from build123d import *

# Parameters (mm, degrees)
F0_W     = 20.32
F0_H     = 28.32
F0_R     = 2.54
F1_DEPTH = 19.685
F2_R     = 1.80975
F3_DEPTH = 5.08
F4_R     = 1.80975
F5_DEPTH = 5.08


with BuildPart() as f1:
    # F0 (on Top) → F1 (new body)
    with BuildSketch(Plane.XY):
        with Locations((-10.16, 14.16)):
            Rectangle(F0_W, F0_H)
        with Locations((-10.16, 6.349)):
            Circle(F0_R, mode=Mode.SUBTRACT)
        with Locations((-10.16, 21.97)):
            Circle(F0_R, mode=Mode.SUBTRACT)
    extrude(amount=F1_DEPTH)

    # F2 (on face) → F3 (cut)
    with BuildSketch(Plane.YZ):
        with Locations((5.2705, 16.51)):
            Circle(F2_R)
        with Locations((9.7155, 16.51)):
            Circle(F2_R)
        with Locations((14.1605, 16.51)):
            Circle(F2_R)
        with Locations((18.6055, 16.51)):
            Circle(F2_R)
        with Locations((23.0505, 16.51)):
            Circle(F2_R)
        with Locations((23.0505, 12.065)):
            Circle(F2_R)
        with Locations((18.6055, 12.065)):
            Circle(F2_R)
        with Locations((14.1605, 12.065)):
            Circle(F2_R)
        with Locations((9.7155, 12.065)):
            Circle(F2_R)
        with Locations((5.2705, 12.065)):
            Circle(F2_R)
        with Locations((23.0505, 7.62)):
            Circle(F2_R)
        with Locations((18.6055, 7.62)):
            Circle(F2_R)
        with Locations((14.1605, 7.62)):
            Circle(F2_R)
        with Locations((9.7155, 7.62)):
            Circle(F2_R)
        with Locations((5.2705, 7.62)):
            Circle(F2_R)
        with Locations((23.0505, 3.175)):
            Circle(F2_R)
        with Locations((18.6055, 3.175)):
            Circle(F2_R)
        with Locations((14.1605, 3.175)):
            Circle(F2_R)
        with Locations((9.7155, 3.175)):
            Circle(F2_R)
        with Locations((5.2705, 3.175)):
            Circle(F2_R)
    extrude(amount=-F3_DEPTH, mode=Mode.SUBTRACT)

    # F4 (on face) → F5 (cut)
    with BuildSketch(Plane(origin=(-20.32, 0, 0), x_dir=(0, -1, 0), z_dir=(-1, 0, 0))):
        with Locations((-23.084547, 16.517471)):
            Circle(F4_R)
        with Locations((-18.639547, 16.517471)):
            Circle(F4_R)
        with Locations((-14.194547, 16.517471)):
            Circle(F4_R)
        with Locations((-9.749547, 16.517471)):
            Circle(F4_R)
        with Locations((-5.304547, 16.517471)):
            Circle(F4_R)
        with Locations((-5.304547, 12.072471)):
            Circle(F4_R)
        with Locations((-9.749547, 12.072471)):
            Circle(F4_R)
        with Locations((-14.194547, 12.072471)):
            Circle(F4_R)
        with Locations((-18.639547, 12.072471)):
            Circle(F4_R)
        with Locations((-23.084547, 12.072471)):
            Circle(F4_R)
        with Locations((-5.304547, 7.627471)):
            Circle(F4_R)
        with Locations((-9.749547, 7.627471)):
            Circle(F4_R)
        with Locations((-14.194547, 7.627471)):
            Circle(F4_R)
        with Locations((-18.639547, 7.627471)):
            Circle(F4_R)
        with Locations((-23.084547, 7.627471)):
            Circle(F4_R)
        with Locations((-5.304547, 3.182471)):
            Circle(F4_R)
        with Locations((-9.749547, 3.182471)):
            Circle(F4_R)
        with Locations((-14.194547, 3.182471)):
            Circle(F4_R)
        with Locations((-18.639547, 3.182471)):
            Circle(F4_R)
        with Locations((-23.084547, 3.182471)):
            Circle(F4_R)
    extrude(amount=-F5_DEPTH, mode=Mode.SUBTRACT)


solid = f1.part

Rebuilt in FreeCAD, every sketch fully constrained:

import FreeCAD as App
import Part
import Sketcher
from FreeCAD import Vector
Q = App.Units.Quantity

doc = App.newDocument("Part")
params = doc.addObject("Spreadsheet::Sheet", "Params")
for row, (alias, value) in enumerate([
    ("sketch1_diameter", "0.2 in"),
    ("sketch1_width", "0.8 in"),
    ("pad1_length", "0.775 in"),
    ("pocket1_length", "0.2 in"),
    ("pocket2_length", "0.2 in"),
], start=1):
    params.set(f"A{row}", alias)
    params.set(f"B{row}", "=" + value)
    params.setAlias(f"B{row}", alias)

body = doc.addObject("PartDesign::Body", "Body")

sketch1 = doc.addObject("Sketcher::SketchObject", "Sketch")
body.addObject(sketch1)
sketch1.AttachmentSupport = (doc.XY_Plane, [""])
sketch1.MapMode = "FlatFace"
sketch1.addGeometry(Part.LineSegment(Vector(-20.3, 28.3, 0), Vector(-20.3, 0, 0)), False)
sketch1.addGeometry(Part.LineSegment(Vector(-20.3, 0, 0), Vector(0, 0, 0)), False)
sketch1.addGeometry(Part.LineSegment(Vector(0, 0, 0), Vector(0, 28.3, 0)), False)
sketch1.addGeometry(Part.LineSegment(Vector(0, 28.3, 0), Vector(-20.3, 28.3, 0)), False)
sketch1.addGeometry(Part.Circle(Vector(-10.2, 6.3, 0), Vector(0, 0, 1), 2.5), False)
sketch1.addGeometry(Part.Circle(Vector(-10.2, 22, 0), Vector(0, 0, 1), 2.5), False)
sketch1.addConstraint(Sketcher.Constraint("Coincident", 0, 2, 1, 1))
sketch1.addConstraint(Sketcher.Constraint("Coincident", 1, 2, 2, 1))
sketch1.addConstraint(Sketcher.Constraint("Coincident", 2, 2, 3, 1))
sketch1.addConstraint(Sketcher.Constraint("Coincident", 3, 2, 0, 1))
sketch1.addConstraint(Sketcher.Constraint("Vertical", 0))
sketch1.addConstraint(Sketcher.Constraint("Horizontal", 1))
sketch1.addConstraint(Sketcher.Constraint("Vertical", 2))
sketch1.addConstraint(Sketcher.Constraint("Horizontal", 3))
sketch1.addConstraint(Sketcher.Constraint("Coincident", 1, 2, -1, 1))
sketch1.addConstraint(Sketcher.Constraint("Equal", 4, 5))
sketch1.addConstraint(Sketcher.Constraint("Vertical", 4, 3, 5, 3))
sketch1.addConstraint(Sketcher.Constraint("Diameter", 4, Q("0.2 in")))
sketch1.addConstraint(Sketcher.Constraint("DistanceX", 1, 1, 1, 2, Q("0.8 in")))
sketch1.addConstraint(Sketcher.Constraint("DistanceX", 4, 3, -1, 1, Q("0.4 in")))
sketch1.addConstraint(Sketcher.Constraint("DistanceY", 5, 3, 2, 2, Q("0.25 in")))
sketch1.addConstraint(Sketcher.Constraint("DistanceY", 4, 3, 5, 3, Q("0.615 in")))
sketch1.addConstraint(Sketcher.Constraint("DistanceY", 0, 2, 0, 1, Q("28.32 mm")))
sketch1.setExpression("Constraints[11]", "Params.sketch1_diameter")
sketch1.setExpression("Constraints[12]", "Params.sketch1_width")
pad1 = doc.addObject("PartDesign::Pad", "Pad")
body.addObject(pad1)
pad1.Profile = sketch1
pad1.setExpression("Length", "Params.pad1_length")

sketch2 = doc.addObject("Sketcher::SketchObject", "Sketch001")
body.addObject(sketch2)
sketch2.AttachmentSupport = (doc.YZ_Plane, [""])
sketch2.MapMode = "FlatFace"
sketch2.addGeometry(Part.Circle(Vector(5.3, 16.5, 0), Vector(0, 0, 1), 1.8), False)
sketch2.addGeometry(Part.Circle(Vector(9.7, 16.5, 0), Vector(0, 0, 1), 1.8), False)
sketch2.addGeometry(Part.Circle(Vector(14.2, 16.5, 0), Vector(0, 0, 1), 1.8), False)
sketch2.addGeometry(Part.Circle(Vector(18.6, 16.5, 0), Vector(0, 0, 1), 1.8), False)
sketch2.addGeometry(Part.Circle(Vector(23.1, 16.5, 0), Vector(0, 0, 1), 1.8), False)
sketch2.addGeometry(Part.Circle(Vector(23.1, 12.1, 0), Vector(0, 0, 1), 1.8), False)
sketch2.addGeometry(Part.Circle(Vector(18.6, 12.1, 0), Vector(0, 0, 1), 1.8), False)
sketch2.addGeometry(Part.Circle(Vector(14.2, 12.1, 0), Vector(0, 0, 1), 1.8), False)
sketch2.addGeometry(Part.Circle(Vector(9.7, 12.1, 0), Vector(0, 0, 1), 1.8), False)
sketch2.addGeometry(Part.Circle(Vector(5.3, 12.1, 0), Vector(0, 0, 1), 1.8), False)
sketch2.addGeometry(Part.Circle(Vector(23.1, 7.6, 0), Vector(0, 0, 1), 1.8), False)
sketch2.addGeometry(Part.Circle(Vector(18.6, 7.6, 0), Vector(0, 0, 1), 1.8), False)
sketch2.addGeometry(Part.Circle(Vector(14.2, 7.6, 0), Vector(0, 0, 1), 1.8), False)
sketch2.addGeometry(Part.Circle(Vector(9.7, 7.6, 0), Vector(0, 0, 1), 1.8), False)
sketch2.addGeometry(Part.Circle(Vector(5.3, 7.6, 0), Vector(0, 0, 1), 1.8), False)
sketch2.addGeometry(Part.Circle(Vector(23.1, 3.2, 0), Vector(0, 0, 1), 1.8), False)
sketch2.addGeometry(Part.Circle(Vector(18.6, 3.2, 0), Vector(0, 0, 1), 1.8), False)
sketch2.addGeometry(Part.Circle(Vector(14.2, 3.2, 0), Vector(0, 0, 1), 1.8), False)
sketch2.addGeometry(Part.Circle(Vector(9.7, 3.2, 0), Vector(0, 0, 1), 1.8), False)
sketch2.addGeometry(Part.Circle(Vector(5.3, 3.2, 0), Vector(0, 0, 1), 1.8), False)
sketch2.addConstraint(Sketcher.Constraint("Equal", 0, 1))
sketch2.addConstraint(Sketcher.Constraint("Equal", 1, 2))
sketch2.addConstraint(Sketcher.Constraint("Equal", 2, 3))
sketch2.addConstraint(Sketcher.Constraint("Equal", 3, 4))
sketch2.addConstraint(Sketcher.Constraint("Equal", 4, 5))
sketch2.addConstraint(Sketcher.Constraint("Equal", 5, 6))
sketch2.addConstraint(Sketcher.Constraint("Equal", 6, 7))
sketch2.addConstraint(Sketcher.Constraint("Equal", 7, 8))
sketch2.addConstraint(Sketcher.Constraint("Equal", 8, 9))
sketch2.addConstraint(Sketcher.Constraint("Equal", 9, 10))
sketch2.addConstraint(Sketcher.Constraint("Equal", 10, 11))
sketch2.addConstraint(Sketcher.Constraint("Equal", 11, 12))
sketch2.addConstraint(Sketcher.Constraint("Equal", 12, 13))
sketch2.addConstraint(Sketcher.Constraint("Equal", 13, 14))
sketch2.addConstraint(Sketcher.Constraint("Equal", 14, 15))
sketch2.addConstraint(Sketcher.Constraint("Equal", 15, 16))
sketch2.addConstraint(Sketcher.Constraint("Equal", 16, 17))
sketch2.addConstraint(Sketcher.Constraint("Equal", 17, 18))
sketch2.addConstraint(Sketcher.Constraint("Equal", 18, 19))
sketch2.addConstraint(Sketcher.Constraint("Horizontal", 0, 3, 1, 3))
sketch2.addConstraint(Sketcher.Constraint("Horizontal", 1, 3, 2, 3))
sketch2.addConstraint(Sketcher.Constraint("Horizontal", 2, 3, 3, 3))
sketch2.addConstraint(Sketcher.Constraint("Horizontal", 3, 3, 4, 3))
sketch2.addConstraint(Sketcher.Constraint("Horizontal", 5, 3, 6, 3))
sketch2.addConstraint(Sketcher.Constraint("Horizontal", 6, 3, 7, 3))
sketch2.addConstraint(Sketcher.Constraint("Horizontal", 7, 3, 8, 3))
sketch2.addConstraint(Sketcher.Constraint("Horizontal", 8, 3, 9, 3))
sketch2.addConstraint(Sketcher.Constraint("Horizontal", 10, 3, 11, 3))
sketch2.addConstraint(Sketcher.Constraint("Horizontal", 11, 3, 12, 3))
sketch2.addConstraint(Sketcher.Constraint("Horizontal", 12, 3, 13, 3))
sketch2.addConstraint(Sketcher.Constraint("Horizontal", 13, 3, 14, 3))
sketch2.addConstraint(Sketcher.Constraint("Horizontal", 15, 3, 16, 3))
sketch2.addConstraint(Sketcher.Constraint("Horizontal", 16, 3, 17, 3))
sketch2.addConstraint(Sketcher.Constraint("Horizontal", 17, 3, 18, 3))
sketch2.addConstraint(Sketcher.Constraint("Horizontal", 18, 3, 19, 3))
sketch2.addConstraint(Sketcher.Constraint("Vertical", 4, 3, 5, 3))
sketch2.addConstraint(Sketcher.Constraint("Vertical", 3, 3, 6, 3))
sketch2.addConstraint(Sketcher.Constraint("Vertical", 2, 3, 7, 3))
sketch2.addConstraint(Sketcher.Constraint("Vertical", 1, 3, 8, 3))
sketch2.addConstraint(Sketcher.Constraint("Vertical", 0, 3, 9, 3))
sketch2.addConstraint(Sketcher.Constraint("Vertical", 5, 3, 10, 3))
sketch2.addConstraint(Sketcher.Constraint("Vertical", 6, 3, 11, 3))
sketch2.addConstraint(Sketcher.Constraint("Vertical", 7, 3, 12, 3))
sketch2.addConstraint(Sketcher.Constraint("Vertical", 8, 3, 13, 3))
sketch2.addConstraint(Sketcher.Constraint("Vertical", 9, 3, 14, 3))
sketch2.addConstraint(Sketcher.Constraint("Vertical", 10, 3, 15, 3))
sketch2.addConstraint(Sketcher.Constraint("Vertical", 11, 3, 16, 3))
sketch2.addConstraint(Sketcher.Constraint("Vertical", 12, 3, 17, 3))
sketch2.addConstraint(Sketcher.Constraint("Vertical", 13, 3, 18, 3))
sketch2.addConstraint(Sketcher.Constraint("Vertical", 14, 3, 19, 3))
sketch2.addConstraint(Sketcher.Constraint("Diameter", 0, Q("0.1425 in")))
sketch2.addConstraint(Sketcher.Constraint("DistanceY", -1, 1, 10, 3, Q("0.3 in")))
sketch2.addConstraint(Sketcher.Constraint("DistanceX", 0, 3, 4, 3, Q("0.7 in")))
sketch2.addConstraint(Sketcher.Constraint("DistanceY", -1, 1, 0, 3, Q("0.65 in")))
sketch2.addConstraint(Sketcher.Constraint("DistanceX", 0, 3, 2, 3, Q("0.35 in")))
sketch2.addConstraint(Sketcher.Constraint("DistanceX", 1, 3, 3, 3, Q("0.35 in")))
sketch2.addConstraint(Sketcher.Constraint("DistanceY", 15, 3, 5, 3, Q("0.35 in")))
sketch2.addConstraint(Sketcher.Constraint("DistanceY", -1, 1, 5, 3, Q("0.475 in")))
sketch2.addConstraint(Sketcher.Constraint("DistanceX", 0, 3, 1, 3, Q("0.175 in")))
sketch2.addConstraint(Sketcher.Constraint("DistanceX", -1, 1, 0, 3, Q("0.2075 in")))
pocket1 = doc.addObject("PartDesign::Pocket", "Pocket")
body.addObject(pocket1)
pocket1.Profile = sketch2
pocket1.setExpression("Length", "Params.pocket1_length")

sketch3 = doc.addObject("Sketcher::SketchObject", "Sketch002")
body.addObject(sketch3)
sketch3.AttachmentSupport = (doc.YZ_Plane, [""])
sketch3.MapMode = "FlatFace"
sketch3.AttachmentOffset = App.Placement(Vector(0, 0, -0.8 * 25.4), App.Rotation())
sketch3.addGeometry(Part.Circle(Vector(23.1, 16.5, 0), Vector(0, 0, 1), 1.8), False)
sketch3.addGeometry(Part.Circle(Vector(18.6, 16.5, 0), Vector(0, 0, 1), 1.8), False)
sketch3.addGeometry(Part.Circle(Vector(14.2, 16.5, 0), Vector(0, 0, 1), 1.8), False)
sketch3.addGeometry(Part.Circle(Vector(9.7, 16.5, 0), Vector(0, 0, 1), 1.8), False)
sketch3.addGeometry(Part.Circle(Vector(5.3, 16.5, 0), Vector(0, 0, 1), 1.8), False)
sketch3.addGeometry(Part.Circle(Vector(5.3, 12.1, 0), Vector(0, 0, 1), 1.8), False)
sketch3.addGeometry(Part.Circle(Vector(9.7, 12.1, 0), Vector(0, 0, 1), 1.8), False)
sketch3.addGeometry(Part.Circle(Vector(14.2, 12.1, 0), Vector(0, 0, 1), 1.8), False)
sketch3.addGeometry(Part.Circle(Vector(18.6, 12.1, 0), Vector(0, 0, 1), 1.8), False)
sketch3.addGeometry(Part.Circle(Vector(23.1, 12.1, 0), Vector(0, 0, 1), 1.8), False)
sketch3.addGeometry(Part.Circle(Vector(5.3, 7.6, 0), Vector(0, 0, 1), 1.8), False)
sketch3.addGeometry(Part.Circle(Vector(9.7, 7.6, 0), Vector(0, 0, 1), 1.8), False)
sketch3.addGeometry(Part.Circle(Vector(14.2, 7.6, 0), Vector(0, 0, 1), 1.8), False)
sketch3.addGeometry(Part.Circle(Vector(18.6, 7.6, 0), Vector(0, 0, 1), 1.8), False)
sketch3.addGeometry(Part.Circle(Vector(23.1, 7.6, 0), Vector(0, 0, 1), 1.8), False)
sketch3.addGeometry(Part.Circle(Vector(5.3, 3.2, 0), Vector(0, 0, 1), 1.8), False)
sketch3.addGeometry(Part.Circle(Vector(9.7, 3.2, 0), Vector(0, 0, 1), 1.8), False)
sketch3.addGeometry(Part.Circle(Vector(14.2, 3.2, 0), Vector(0, 0, 1), 1.8), False)
sketch3.addGeometry(Part.Circle(Vector(18.6, 3.2, 0), Vector(0, 0, 1), 1.8), False)
sketch3.addGeometry(Part.Circle(Vector(23.1, 3.2, 0), Vector(0, 0, 1), 1.8), False)
sketch3.addConstraint(Sketcher.Constraint("Equal", 0, 1))
sketch3.addConstraint(Sketcher.Constraint("Equal", 1, 2))
sketch3.addConstraint(Sketcher.Constraint("Equal", 2, 3))
sketch3.addConstraint(Sketcher.Constraint("Equal", 3, 4))
sketch3.addConstraint(Sketcher.Constraint("Equal", 4, 5))
sketch3.addConstraint(Sketcher.Constraint("Equal", 5, 6))
sketch3.addConstraint(Sketcher.Constraint("Equal", 6, 7))
sketch3.addConstraint(Sketcher.Constraint("Equal", 7, 8))
sketch3.addConstraint(Sketcher.Constraint("Equal", 8, 9))
sketch3.addConstraint(Sketcher.Constraint("Equal", 9, 10))
sketch3.addConstraint(Sketcher.Constraint("Equal", 10, 11))
sketch3.addConstraint(Sketcher.Constraint("Equal", 11, 12))
sketch3.addConstraint(Sketcher.Constraint("Equal", 12, 13))
sketch3.addConstraint(Sketcher.Constraint("Equal", 13, 14))
sketch3.addConstraint(Sketcher.Constraint("Equal", 14, 15))
sketch3.addConstraint(Sketcher.Constraint("Equal", 15, 16))
sketch3.addConstraint(Sketcher.Constraint("Equal", 16, 17))
sketch3.addConstraint(Sketcher.Constraint("Equal", 17, 18))
sketch3.addConstraint(Sketcher.Constraint("Equal", 18, 19))
sketch3.addConstraint(Sketcher.Constraint("Horizontal", 0, 3, 1, 3))
sketch3.addConstraint(Sketcher.Constraint("Horizontal", 1, 3, 2, 3))
sketch3.addConstraint(Sketcher.Constraint("Horizontal", 2, 3, 3, 3))
sketch3.addConstraint(Sketcher.Constraint("Horizontal", 3, 3, 4, 3))
sketch3.addConstraint(Sketcher.Constraint("Horizontal", 5, 3, 6, 3))
sketch3.addConstraint(Sketcher.Constraint("Horizontal", 6, 3, 7, 3))
sketch3.addConstraint(Sketcher.Constraint("Horizontal", 7, 3, 8, 3))
sketch3.addConstraint(Sketcher.Constraint("Horizontal", 8, 3, 9, 3))
sketch3.addConstraint(Sketcher.Constraint("Horizontal", 10, 3, 11, 3))
sketch3.addConstraint(Sketcher.Constraint("Horizontal", 11, 3, 12, 3))
sketch3.addConstraint(Sketcher.Constraint("Horizontal", 12, 3, 13, 3))
sketch3.addConstraint(Sketcher.Constraint("Horizontal", 13, 3, 14, 3))
sketch3.addConstraint(Sketcher.Constraint("Horizontal", 15, 3, 16, 3))
sketch3.addConstraint(Sketcher.Constraint("Horizontal", 16, 3, 17, 3))
sketch3.addConstraint(Sketcher.Constraint("Horizontal", 17, 3, 18, 3))
sketch3.addConstraint(Sketcher.Constraint("Horizontal", 18, 3, 19, 3))
sketch3.addConstraint(Sketcher.Constraint("Vertical", 4, 3, 5, 3))
sketch3.addConstraint(Sketcher.Constraint("Vertical", 3, 3, 6, 3))
sketch3.addConstraint(Sketcher.Constraint("Vertical", 2, 3, 7, 3))
sketch3.addConstraint(Sketcher.Constraint("Vertical", 1, 3, 8, 3))
sketch3.addConstraint(Sketcher.Constraint("Vertical", 0, 3, 9, 3))
sketch3.addConstraint(Sketcher.Constraint("Vertical", 5, 3, 10, 3))
sketch3.addConstraint(Sketcher.Constraint("Vertical", 6, 3, 11, 3))
sketch3.addConstraint(Sketcher.Constraint("Vertical", 7, 3, 12, 3))
sketch3.addConstraint(Sketcher.Constraint("Vertical", 8, 3, 13, 3))
sketch3.addConstraint(Sketcher.Constraint("Vertical", 9, 3, 14, 3))
sketch3.addConstraint(Sketcher.Constraint("Vertical", 10, 3, 15, 3))
sketch3.addConstraint(Sketcher.Constraint("Vertical", 11, 3, 16, 3))
sketch3.addConstraint(Sketcher.Constraint("Vertical", 12, 3, 17, 3))
sketch3.addConstraint(Sketcher.Constraint("Vertical", 13, 3, 18, 3))
sketch3.addConstraint(Sketcher.Constraint("Vertical", 14, 3, 19, 3))
sketch3.addConstraint(Sketcher.Constraint("Diameter", 0, Q("0.1425 in")))
sketch3.addConstraint(Sketcher.Constraint("DistanceX", 4, 3, 0, 3, Q("0.7 in")))
sketch3.addConstraint(Sketcher.Constraint("DistanceX", 2, 3, 0, 3, Q("0.35 in")))
sketch3.addConstraint(Sketcher.Constraint("DistanceX", 3, 3, 1, 3, Q("0.35 in")))
sketch3.addConstraint(Sketcher.Constraint("DistanceY", 10, 3, 4, 3, Q("0.35 in")))
sketch3.addConstraint(Sketcher.Constraint("DistanceY", 15, 3, 5, 3, Q("0.35 in")))
sketch3.addConstraint(Sketcher.Constraint("DistanceX", 1, 3, 0, 3, Q("0.175 in")))
sketch3.addConstraint(Sketcher.Constraint("DistanceY", 5, 3, 4, 3, Q("0.175 in")))
sketch3.addConstraint(Sketcher.Constraint("DistanceY", -1, 1, 0, 3, Q("16.517471 mm")))
sketch3.addConstraint(Sketcher.Constraint("DistanceX", -1, 1, 0, 3, Q("23.084547 mm")))
pocket2 = doc.addObject("PartDesign::Pocket", "Pocket001")
body.addObject(pocket2)
pocket2.Profile = sketch3
pocket2.setExpression("Length", "Params.pocket2_length")
pocket2.Reversed = True

doc.recompute()
